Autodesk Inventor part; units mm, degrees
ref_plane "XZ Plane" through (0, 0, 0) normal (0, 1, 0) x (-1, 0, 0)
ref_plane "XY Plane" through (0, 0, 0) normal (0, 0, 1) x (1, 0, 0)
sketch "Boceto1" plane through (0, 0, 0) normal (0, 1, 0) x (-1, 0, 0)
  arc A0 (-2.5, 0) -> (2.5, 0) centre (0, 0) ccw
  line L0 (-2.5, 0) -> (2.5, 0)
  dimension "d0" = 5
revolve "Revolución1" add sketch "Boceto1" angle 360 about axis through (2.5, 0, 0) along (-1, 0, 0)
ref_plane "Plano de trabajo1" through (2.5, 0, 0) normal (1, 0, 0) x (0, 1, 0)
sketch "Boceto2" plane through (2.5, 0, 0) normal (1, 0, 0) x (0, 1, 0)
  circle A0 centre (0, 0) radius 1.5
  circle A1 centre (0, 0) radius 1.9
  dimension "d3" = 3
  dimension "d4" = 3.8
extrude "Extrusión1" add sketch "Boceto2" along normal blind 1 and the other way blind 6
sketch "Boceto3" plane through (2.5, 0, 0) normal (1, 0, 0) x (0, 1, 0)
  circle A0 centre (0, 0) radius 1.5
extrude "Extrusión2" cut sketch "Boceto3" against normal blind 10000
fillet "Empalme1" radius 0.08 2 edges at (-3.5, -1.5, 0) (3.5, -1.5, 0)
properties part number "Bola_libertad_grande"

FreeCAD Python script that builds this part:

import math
import FreeCAD as App
import Part
import Sketcher

V = App.Vector
Q = App.Units.Quantity


def edges_at(feature, points):
    """Names of the edges that pass closest to the given points."""
    edges = feature.Shape.Edges
    near = lambda p: min(range(len(edges)), key=lambda i: edges[i].distToShape(Part.Vertex(*p))[0])
    return sorted({f"Edge{near(p) + 1}" for p in points})

doc = App.newDocument("Part")
body = doc.addObject("PartDesign::Body", "Body")

# Sketch on XZ plane
sketch1 = body.newObject("Sketcher::SketchObject", "Sketch")
sketch1.AttachmentSupport = (doc.getObject("XZ_Plane"), [""])
sketch1.MapMode = "FlatFace"
sketch1.addGeometry([
    Part.LineSegment(V(-2.5, 0, 0), V(2.5, 0, 0)),
    Part.ArcOfCircle(Part.Circle(V(0, 0, 0), V(0, 0, 1), 2.5), math.radians(180), math.radians(360)),
], False)
sketch1.addConstraint([
    Sketcher.Constraint("Coincident", 0, 1, 1, 1),
    Sketcher.Constraint("Coincident", 1, 2, 0, 2),
    Sketcher.Constraint("Horizontal", 0),
    Sketcher.Constraint("Coincident", 1, 3, -1, 1),
    Sketcher.Constraint("PointOnObject", 0, 1, -1),
    Sketcher.Constraint("Radius", 1, Q("2.5 mm")),
])
revolution = body.newObject("PartDesign::Revolution", "Revolution")
revolution.Profile = sketch1
revolution.ReferenceAxis = (sketch1, ["H_Axis"])
revolution.Angle = 360

# Sketch on YZ plane
sketch2 = body.newObject("Sketcher::SketchObject", "Sketch001")
sketch2.AttachmentSupport = (doc.getObject("YZ_Plane"), [""])
sketch2.MapMode = "FlatFace"
sketch2.AttachmentOffset = App.Placement(V(0, 0, 2.5), App.Rotation())
sketch2.addGeometry([
    Part.Circle(V(0, 0, 0), V(0, 0, 1), 1.9),
    Part.Circle(V(0, 0, 0), V(0, 0, 1), 1.5),
], False)
sketch2.addConstraint([
    Sketcher.Constraint("Coincident", 0, 3, -1, 1),
    Sketcher.Constraint("Coincident", 1, 3, -1, 1),
    Sketcher.Constraint("Diameter", 1, Q("3 mm")),
    Sketcher.Constraint("Diameter", 0, Q("3.8 mm")),
])
pad1 = body.newObject("PartDesign::Pad", "Pad")
pad1.Profile = sketch2
pad1.Type = "TwoLengths"
pad1.Length = 1
pad1.Length2 = 6

# Sketch on YZ plane
sketch3 = body.newObject("Sketcher::SketchObject", "Sketch002")
sketch3.AttachmentSupport = (doc.getObject("YZ_Plane"), [""])
sketch3.MapMode = "FlatFace"
sketch3.AttachmentOffset = App.Placement(V(0, 0, 2.5), App.Rotation())
sketch3.addGeometry(Part.Circle(V(0, 0, 0), V(0, 0, 1), 1.5), False)
sketch3.addConstraint([
    Sketcher.Constraint("Coincident", 0, 3, -1, 1),
    Sketcher.Constraint("Diameter", 0, Q("3 mm")),
])
pocket1 = body.newObject("PartDesign::Pocket", "Pocket")
pocket1.Profile = sketch3
pocket1.Length = 10000
doc.recompute()

fillet = body.newObject("PartDesign::Fillet", "Fillet")
fillet.Base = (pocket1, edges_at(pocket1, [(-3.5, -1.5, 0), (3.5, -1.5, 0)]))
fillet.Radius = 0.08

doc.recompute()
